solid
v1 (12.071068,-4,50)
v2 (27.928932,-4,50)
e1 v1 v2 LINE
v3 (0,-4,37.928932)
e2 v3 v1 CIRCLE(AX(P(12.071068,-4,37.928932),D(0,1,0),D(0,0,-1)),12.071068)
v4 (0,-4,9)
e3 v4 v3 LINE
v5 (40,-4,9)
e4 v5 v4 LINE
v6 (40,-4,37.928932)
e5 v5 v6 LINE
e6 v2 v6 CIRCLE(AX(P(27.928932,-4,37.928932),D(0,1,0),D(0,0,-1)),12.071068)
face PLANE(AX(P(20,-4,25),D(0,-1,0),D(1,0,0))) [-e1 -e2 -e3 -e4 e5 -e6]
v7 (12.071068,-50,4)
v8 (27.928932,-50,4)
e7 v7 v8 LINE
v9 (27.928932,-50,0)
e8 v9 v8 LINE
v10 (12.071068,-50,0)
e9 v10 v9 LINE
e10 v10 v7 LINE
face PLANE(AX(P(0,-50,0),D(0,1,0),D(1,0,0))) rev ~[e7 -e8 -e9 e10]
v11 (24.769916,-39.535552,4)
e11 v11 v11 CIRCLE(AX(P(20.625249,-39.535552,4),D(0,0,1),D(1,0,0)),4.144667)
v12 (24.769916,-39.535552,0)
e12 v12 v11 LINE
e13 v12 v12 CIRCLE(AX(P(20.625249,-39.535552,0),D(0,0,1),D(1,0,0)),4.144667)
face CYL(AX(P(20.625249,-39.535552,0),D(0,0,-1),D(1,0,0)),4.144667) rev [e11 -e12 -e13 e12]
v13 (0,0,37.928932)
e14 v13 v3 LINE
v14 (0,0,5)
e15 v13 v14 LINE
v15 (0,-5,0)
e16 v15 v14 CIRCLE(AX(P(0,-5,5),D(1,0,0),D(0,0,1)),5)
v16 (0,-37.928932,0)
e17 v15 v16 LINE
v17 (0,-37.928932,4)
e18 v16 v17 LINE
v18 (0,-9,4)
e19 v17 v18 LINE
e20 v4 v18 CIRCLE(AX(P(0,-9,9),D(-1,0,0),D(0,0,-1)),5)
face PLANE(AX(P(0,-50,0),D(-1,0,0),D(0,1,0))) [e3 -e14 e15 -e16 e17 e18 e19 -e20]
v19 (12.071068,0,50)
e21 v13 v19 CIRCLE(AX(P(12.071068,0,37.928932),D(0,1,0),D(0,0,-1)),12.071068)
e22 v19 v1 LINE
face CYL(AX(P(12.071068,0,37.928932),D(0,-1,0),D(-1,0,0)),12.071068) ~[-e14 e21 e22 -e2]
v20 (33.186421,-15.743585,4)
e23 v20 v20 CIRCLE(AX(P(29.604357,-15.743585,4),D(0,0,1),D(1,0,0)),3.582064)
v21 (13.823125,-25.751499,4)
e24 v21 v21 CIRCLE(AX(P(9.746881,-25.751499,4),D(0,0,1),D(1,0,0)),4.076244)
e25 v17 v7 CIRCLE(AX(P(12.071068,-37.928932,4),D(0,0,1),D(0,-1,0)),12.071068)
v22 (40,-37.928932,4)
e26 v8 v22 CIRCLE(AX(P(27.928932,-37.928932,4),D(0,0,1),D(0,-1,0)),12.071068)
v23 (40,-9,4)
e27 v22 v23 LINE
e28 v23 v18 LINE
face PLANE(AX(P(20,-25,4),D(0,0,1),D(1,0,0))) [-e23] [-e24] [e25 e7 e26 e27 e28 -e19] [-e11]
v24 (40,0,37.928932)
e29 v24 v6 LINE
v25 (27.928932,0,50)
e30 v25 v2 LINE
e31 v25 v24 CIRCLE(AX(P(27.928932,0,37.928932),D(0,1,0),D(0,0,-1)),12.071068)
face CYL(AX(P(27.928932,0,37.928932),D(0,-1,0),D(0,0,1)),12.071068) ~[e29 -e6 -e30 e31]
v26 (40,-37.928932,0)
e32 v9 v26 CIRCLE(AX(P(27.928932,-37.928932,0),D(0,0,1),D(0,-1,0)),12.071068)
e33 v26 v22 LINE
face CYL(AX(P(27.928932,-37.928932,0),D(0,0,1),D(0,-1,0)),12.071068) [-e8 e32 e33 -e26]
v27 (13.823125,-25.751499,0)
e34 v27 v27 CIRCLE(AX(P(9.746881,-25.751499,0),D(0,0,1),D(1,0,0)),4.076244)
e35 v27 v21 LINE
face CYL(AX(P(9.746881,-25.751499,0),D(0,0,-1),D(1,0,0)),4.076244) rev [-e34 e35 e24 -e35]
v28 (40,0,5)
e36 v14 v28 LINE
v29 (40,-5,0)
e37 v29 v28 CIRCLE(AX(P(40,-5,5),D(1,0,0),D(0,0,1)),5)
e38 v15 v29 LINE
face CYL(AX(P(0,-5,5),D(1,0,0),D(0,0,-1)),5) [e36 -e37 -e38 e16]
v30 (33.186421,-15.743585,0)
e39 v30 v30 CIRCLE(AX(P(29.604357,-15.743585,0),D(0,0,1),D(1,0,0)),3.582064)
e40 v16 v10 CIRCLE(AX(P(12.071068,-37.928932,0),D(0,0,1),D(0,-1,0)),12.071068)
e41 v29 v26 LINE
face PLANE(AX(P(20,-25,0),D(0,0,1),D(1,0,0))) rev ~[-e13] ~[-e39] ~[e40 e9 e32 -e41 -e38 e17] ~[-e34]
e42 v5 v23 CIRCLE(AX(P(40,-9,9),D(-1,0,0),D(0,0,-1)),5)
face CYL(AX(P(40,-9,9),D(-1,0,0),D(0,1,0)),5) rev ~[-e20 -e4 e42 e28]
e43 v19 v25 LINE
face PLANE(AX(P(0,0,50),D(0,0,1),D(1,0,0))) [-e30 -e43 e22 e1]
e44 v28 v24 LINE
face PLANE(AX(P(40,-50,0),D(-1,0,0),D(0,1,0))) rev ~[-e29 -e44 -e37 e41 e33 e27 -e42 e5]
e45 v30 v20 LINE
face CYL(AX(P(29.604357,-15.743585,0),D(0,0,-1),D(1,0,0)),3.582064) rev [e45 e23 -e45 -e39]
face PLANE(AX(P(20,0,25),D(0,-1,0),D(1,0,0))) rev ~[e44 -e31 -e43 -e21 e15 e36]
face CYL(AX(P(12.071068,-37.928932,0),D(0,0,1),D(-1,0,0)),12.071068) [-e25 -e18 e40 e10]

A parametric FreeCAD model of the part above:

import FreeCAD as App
import Part
import Sketcher
Q = App.Units.Quantity


def edges_at(feature, points):
    """Names of the edges that pass closest to the given points."""
    edges = feature.Shape.Edges
    near = lambda p: min(range(len(edges)), key=lambda i: edges[i].distToShape(Part.Vertex(*p))[0])
    return sorted({f"Edge{near(p) + 1}" for p in points})

doc = App.newDocument("Part")
body = doc.addObject("PartDesign::Body", "Body")

# Sketch on XZ plane
sketch1 = body.newObject("Sketcher::SketchObject", "Sketch")
sketch1.AttachmentSupport = (doc.getObject("XZ_Plane"), [""])
sketch1.MapMode = "FlatFace"
sketch1.addGeometry([
    Part.LineSegment(App.Vector(0, 50, 0), App.Vector(0, 0, 0)),
    Part.LineSegment(App.Vector(0, 0, 0), App.Vector(40, 0, 0)),
    Part.LineSegment(App.Vector(40, 0, 0), App.Vector(40, 50, 0)),
    Part.LineSegment(App.Vector(40, 50, 0), App.Vector(0, 50, 0)),
], False)
sketch1.addConstraint([
    Sketcher.Constraint("Coincident", 0, 2, 1, 1),
    Sketcher.Constraint("Coincident", 1, 2, 2, 1),
    Sketcher.Constraint("Coincident", 2, 2, 3, 1),
    Sketcher.Constraint("Coincident", 3, 2, 0, 1),
    Sketcher.Constraint("Vertical", 0),
    Sketcher.Constraint("Horizontal", 1),
    Sketcher.Constraint("Vertical", 2),
    Sketcher.Constraint("Horizontal", 3),
    Sketcher.Constraint("Coincident", 0, 2, -1, 1),
    Sketcher.Constraint("DistanceX", 1, 1, 1, 2, Q("40 mm")),
    Sketcher.Constraint("DistanceY", 0, 2, 0, 1, Q("50 mm")),
])
pad1 = body.newObject("PartDesign::Pad", "Pad")
pad1.Profile = sketch1
pad1.Length = 4

# Sketch on XY plane
sketch2 = body.newObject("Sketcher::SketchObject", "Sketch001")
sketch2.AttachmentSupport = (doc.getObject("XY_Plane"), [""])
sketch2.MapMode = "FlatFace"
sketch2.addGeometry([
    Part.LineSegment(App.Vector(0, 0, 0), App.Vector(0, -50, 0)),  # 0
    Part.LineSegment(App.Vector(0, -50, 0), App.Vector(40, -50, 0)),  # 1
    Part.LineSegment(App.Vector(40, -50, 0), App.Vector(40, 0, 0)),  # 2
    Part.LineSegment(App.Vector(40, 0, 0), App.Vector(0, 0, 0)),  # 3
    Part.Circle(App.Vector(20.625249, -39.535552, 0), App.Vector(0, 0, 1), 4.144667),  # 4
    Part.Circle(App.Vector(9.746881, -25.751499, 0), App.Vector(0, 0, 1), 4.076244),  # 5
    Part.Circle(App.Vector(29.604357, -15.743585, 0), App.Vector(0, 0, 1), 3.582064),  # 6
], False)
sketch2.addConstraint([
    Sketcher.Constraint("Coincident", 0, 2, 1, 1),
    Sketcher.Constraint("Coincident", 1, 2, 2, 1),
    Sketcher.Constraint("Coincident", 2, 2, 3, 1),
    Sketcher.Constraint("Coincident", 3, 2, 0, 1),
    Sketcher.Constraint("Vertical", 0),
    Sketcher.Constraint("Horizontal", 1),
    Sketcher.Constraint("Vertical", 2),
    Sketcher.Constraint("Horizontal", 3),
    Sketcher.Constraint("Coincident", 3, 2, -1, 1),
    Sketcher.Constraint("DistanceX", 1, 1, 1, 2, Q("40 mm")),
    Sketcher.Constraint("DistanceY", 0, 2, 0, 1, Q("50 mm")),
    Sketcher.Constraint("Diameter", 4, Q("8.289334 mm")),
    Sketcher.Constraint("Diameter", 5, Q("8.152488 mm")),
    Sketcher.Constraint("Diameter", 6, Q("7.164128 mm")),
    Sketcher.Constraint("DistanceY", 5, 3, -1, 1, Q("25.751499 mm")),
    Sketcher.Constraint("DistanceX", -1, 1, 4, 3, Q("20.625249 mm")),
    Sketcher.Constraint("DistanceX", -1, 1, 5, 3, Q("9.746881 mm")),
    Sketcher.Constraint("DistanceY", 4, 3, -1, 1, Q("39.535552 mm")),
    Sketcher.Constraint("DistanceX", -1, 1, 6, 3, Q("29.604357 mm")),
    Sketcher.Constraint("DistanceY", 6, 3, -1, 1, Q("15.743585 mm")),
])
pad2 = body.newObject("PartDesign::Pad", "Pad001")
pad2.Profile = sketch2
pad2.Length = 4
doc.recompute()

fillet = body.newObject("PartDesign::Fillet", "Fillet")
fillet.Base = (pad2, edges_at(pad2, [(20, -4, 4)]))
fillet.Radius = 5
doc.recompute()

fillet2 = body.newObject("PartDesign::Fillet", "Fillet001")
fillet2.Base = (fillet, edges_at(fillet, [(20, 0, 0)]))
fillet2.Radius = 5
doc.recompute()

fillet3 = body.newObject("PartDesign::Fillet", "Fillet002")
fillet3.Base = (fillet2, edges_at(fillet2, [
    (0, -50, 2),
    (40, -50, 2),
    (40, -2, 50),
    (0, -2, 50),
]))
fillet3.Radius = 12.071068

doc.recompute()
